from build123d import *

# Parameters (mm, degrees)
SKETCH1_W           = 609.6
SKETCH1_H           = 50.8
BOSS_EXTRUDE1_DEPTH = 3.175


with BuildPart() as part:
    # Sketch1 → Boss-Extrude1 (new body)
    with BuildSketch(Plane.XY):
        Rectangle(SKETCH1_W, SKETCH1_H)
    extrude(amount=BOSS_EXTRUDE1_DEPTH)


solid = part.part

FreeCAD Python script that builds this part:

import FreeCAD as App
import Part
import Sketcher
Q = App.Units.Quantity

doc = App.newDocument("Part")
body = doc.addObject("PartDesign::Body", "Body")

# Sketch on XY plane
sketch1 = body.newObject("Sketcher::SketchObject", "Sketch")
sketch1.AttachmentSupport = (doc.getObject("XY_Plane"), [""])
sketch1.MapMode = "FlatFace"
sketch1.addGeometry([
    Part.LineSegment(App.Vector(-304.8, 25.4, 0), App.Vector(-304.8, -25.4, 0)),
    Part.LineSegment(App.Vector(-304.8, -25.4, 0), App.Vector(304.8, -25.4, 0)),
    Part.LineSegment(App.Vector(304.8, -25.4, 0), App.Vector(304.8, 25.4, 0)),
    Part.LineSegment(App.Vector(304.8, 25.4, 0), App.Vector(-304.8, 25.4, 0)),
], False)
sketch1.addConstraint([
    Sketcher.Constraint("Coincident", 0, 2, 1, 1),
    Sketcher.Constraint("Coincident", 1, 2, 2, 1),
    Sketcher.Constraint("Coincident", 2, 2, 3, 1),
    Sketcher.Constraint("Coincident", 3, 2, 0, 1),
    Sketcher.Constraint("Vertical", 0),
    Sketcher.Constraint("Horizontal", 1),
    Sketcher.Constraint("Vertical", 2),
    Sketcher.Constraint("Horizontal", 3),
    Sketcher.Constraint("Symmetric", 0, 2, 2, 2, -1, 1),
    Sketcher.Constraint("DistanceX", 1, 1, 1, 2, Q("24 in")),
    Sketcher.Constraint("DistanceY", 0, 2, 0, 1, Q("2 in")),
])
pad1 = body.newObject("PartDesign::Pad", "Pad")
pad1.Profile = sketch1
pad1.Length = Q("0.125 in")

doc.recompute()
